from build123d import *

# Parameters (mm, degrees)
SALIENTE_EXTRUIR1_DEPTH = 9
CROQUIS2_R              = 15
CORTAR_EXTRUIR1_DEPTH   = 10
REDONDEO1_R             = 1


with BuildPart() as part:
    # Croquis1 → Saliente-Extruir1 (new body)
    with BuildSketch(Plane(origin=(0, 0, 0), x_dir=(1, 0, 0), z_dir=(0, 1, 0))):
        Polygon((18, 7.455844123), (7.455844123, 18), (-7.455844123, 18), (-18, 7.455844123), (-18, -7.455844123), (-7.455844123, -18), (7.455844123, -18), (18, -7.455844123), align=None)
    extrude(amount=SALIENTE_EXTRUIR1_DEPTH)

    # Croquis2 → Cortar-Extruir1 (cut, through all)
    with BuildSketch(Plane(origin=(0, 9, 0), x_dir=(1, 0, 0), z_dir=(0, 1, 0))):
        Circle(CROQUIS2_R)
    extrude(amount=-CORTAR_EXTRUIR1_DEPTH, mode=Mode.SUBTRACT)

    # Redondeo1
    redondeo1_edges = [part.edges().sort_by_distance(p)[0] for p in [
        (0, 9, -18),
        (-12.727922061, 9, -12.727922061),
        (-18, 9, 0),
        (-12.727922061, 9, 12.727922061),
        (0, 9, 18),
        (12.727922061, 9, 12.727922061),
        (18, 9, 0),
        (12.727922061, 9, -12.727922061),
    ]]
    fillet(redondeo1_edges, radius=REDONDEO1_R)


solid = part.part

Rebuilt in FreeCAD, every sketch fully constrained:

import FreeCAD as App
import Part
import Sketcher

V = App.Vector


def edges_at(feature, points):
    """Names of the edges that pass closest to the given points."""
    edges = feature.Shape.Edges
    near = lambda p: min(range(len(edges)), key=lambda i: edges[i].distToShape(Part.Vertex(*p))[0])
    return sorted({f"Edge{near(p) + 1}" for p in points})


def add_polygon(sketch, points):
    """Adds a closed chain of lines whose ends are joined by coincident constraints."""
    first, n = sketch.GeometryCount, len(points)
    for a, b in zip(points, points[1:] + points[:1]):
        sketch.addGeometry(Part.LineSegment(App.Vector(*a, 0), App.Vector(*b, 0)), False)
    for i in range(n):
        sketch.addConstraint(Sketcher.Constraint("Coincident", first + i, 2, first + (i + 1) % n, 1))

doc = App.newDocument("Part")
body = doc.addObject("PartDesign::Body", "Body")

sketch1 = body.newObject("Sketcher::SketchObject", "Sketch")
sketch1.AttachmentSupport = (doc.getObject("XZ_Plane"), [""])
sketch1.MapMode = "FlatFace"
add_polygon(sketch1, [(18, -7), (7, -18), (-7, -18), (-18, -7), (-18, 7), (-7, 18), (7, 18), (18, 7)])
sketch1.addConstraint(Sketcher.Constraint("Horizontal", 1))
sketch1.addConstraint(Sketcher.Constraint("Vertical", 3))
sketch1.addConstraint(Sketcher.Constraint("Horizontal", 5))
sketch1.addConstraint(Sketcher.Constraint("Vertical", 7))
sketch1.addConstraint(Sketcher.Constraint("Symmetric", 0, 2, 4, 2, -1, 1))
sketch1.addConstraint(Sketcher.Constraint("Symmetric", 2, 2, 6, 2, -1, 1))
sketch1.addConstraint(Sketcher.Constraint("Perpendicular", 0, 2))
sketch1.addConstraint(Sketcher.Constraint("Perpendicular", 2, 4))
sketch1.addConstraint(Sketcher.Constraint("Perpendicular", 4, 6))
sketch1.addConstraint(Sketcher.Constraint("Horizontal", 3, 2, 6, 2))
sketch1.addConstraint(Sketcher.Constraint("Vertical", 1, 2, 4, 2))
sketch1.addConstraint(Sketcher.Constraint("Equal", 5, 3))
sketch1.addConstraint(Sketcher.Constraint("DistanceY", 0, 2, -1, 1, 18.0))
sketch1.addConstraint(Sketcher.Constraint("DistanceX", 1, 2, 1, 1, 14.911688))
pad1 = body.newObject("PartDesign::Pad", "Pad")
pad1.Profile = sketch1
pad1.Length = 9
pad1.Reversed = True

sketch2 = body.newObject("Sketcher::SketchObject", "Sketch001")
sketch2.AttachmentSupport = (doc.getObject("XZ_Plane"), [""])
sketch2.MapMode = "FlatFace"
sketch2.AttachmentOffset = App.Placement(V(0, 0, -9), App.Rotation())
sketch2.addGeometry(Part.Circle(V(0, 0, 0), V(0, 0, 1), 15), False)
sketch2.addConstraint(Sketcher.Constraint("Coincident", 0, 3, -1, 1))
sketch2.addConstraint(Sketcher.Constraint("Diameter", 0, 30.0))
pocket1 = body.newObject("PartDesign::Pocket", "Pocket")
pocket1.Profile = sketch2
pocket1.Type = "ThroughAll"
pocket1.Reversed = True
doc.recompute()

fillet = body.newObject("PartDesign::Fillet", "Fillet")
fillet.Base = (pocket1, edges_at(pocket1, [
    (0, 9, -18),
    (-12.728, 9, -12.728),
    (-18, 9, 0),
    (-12.728, 9, 12.728),
    (0, 9, 18),
    (12.728, 9, 12.728),
    (18, 9, 0),
    (12.728, 9, -12.728),
]))
fillet.Radius = 1

doc.recompute()
